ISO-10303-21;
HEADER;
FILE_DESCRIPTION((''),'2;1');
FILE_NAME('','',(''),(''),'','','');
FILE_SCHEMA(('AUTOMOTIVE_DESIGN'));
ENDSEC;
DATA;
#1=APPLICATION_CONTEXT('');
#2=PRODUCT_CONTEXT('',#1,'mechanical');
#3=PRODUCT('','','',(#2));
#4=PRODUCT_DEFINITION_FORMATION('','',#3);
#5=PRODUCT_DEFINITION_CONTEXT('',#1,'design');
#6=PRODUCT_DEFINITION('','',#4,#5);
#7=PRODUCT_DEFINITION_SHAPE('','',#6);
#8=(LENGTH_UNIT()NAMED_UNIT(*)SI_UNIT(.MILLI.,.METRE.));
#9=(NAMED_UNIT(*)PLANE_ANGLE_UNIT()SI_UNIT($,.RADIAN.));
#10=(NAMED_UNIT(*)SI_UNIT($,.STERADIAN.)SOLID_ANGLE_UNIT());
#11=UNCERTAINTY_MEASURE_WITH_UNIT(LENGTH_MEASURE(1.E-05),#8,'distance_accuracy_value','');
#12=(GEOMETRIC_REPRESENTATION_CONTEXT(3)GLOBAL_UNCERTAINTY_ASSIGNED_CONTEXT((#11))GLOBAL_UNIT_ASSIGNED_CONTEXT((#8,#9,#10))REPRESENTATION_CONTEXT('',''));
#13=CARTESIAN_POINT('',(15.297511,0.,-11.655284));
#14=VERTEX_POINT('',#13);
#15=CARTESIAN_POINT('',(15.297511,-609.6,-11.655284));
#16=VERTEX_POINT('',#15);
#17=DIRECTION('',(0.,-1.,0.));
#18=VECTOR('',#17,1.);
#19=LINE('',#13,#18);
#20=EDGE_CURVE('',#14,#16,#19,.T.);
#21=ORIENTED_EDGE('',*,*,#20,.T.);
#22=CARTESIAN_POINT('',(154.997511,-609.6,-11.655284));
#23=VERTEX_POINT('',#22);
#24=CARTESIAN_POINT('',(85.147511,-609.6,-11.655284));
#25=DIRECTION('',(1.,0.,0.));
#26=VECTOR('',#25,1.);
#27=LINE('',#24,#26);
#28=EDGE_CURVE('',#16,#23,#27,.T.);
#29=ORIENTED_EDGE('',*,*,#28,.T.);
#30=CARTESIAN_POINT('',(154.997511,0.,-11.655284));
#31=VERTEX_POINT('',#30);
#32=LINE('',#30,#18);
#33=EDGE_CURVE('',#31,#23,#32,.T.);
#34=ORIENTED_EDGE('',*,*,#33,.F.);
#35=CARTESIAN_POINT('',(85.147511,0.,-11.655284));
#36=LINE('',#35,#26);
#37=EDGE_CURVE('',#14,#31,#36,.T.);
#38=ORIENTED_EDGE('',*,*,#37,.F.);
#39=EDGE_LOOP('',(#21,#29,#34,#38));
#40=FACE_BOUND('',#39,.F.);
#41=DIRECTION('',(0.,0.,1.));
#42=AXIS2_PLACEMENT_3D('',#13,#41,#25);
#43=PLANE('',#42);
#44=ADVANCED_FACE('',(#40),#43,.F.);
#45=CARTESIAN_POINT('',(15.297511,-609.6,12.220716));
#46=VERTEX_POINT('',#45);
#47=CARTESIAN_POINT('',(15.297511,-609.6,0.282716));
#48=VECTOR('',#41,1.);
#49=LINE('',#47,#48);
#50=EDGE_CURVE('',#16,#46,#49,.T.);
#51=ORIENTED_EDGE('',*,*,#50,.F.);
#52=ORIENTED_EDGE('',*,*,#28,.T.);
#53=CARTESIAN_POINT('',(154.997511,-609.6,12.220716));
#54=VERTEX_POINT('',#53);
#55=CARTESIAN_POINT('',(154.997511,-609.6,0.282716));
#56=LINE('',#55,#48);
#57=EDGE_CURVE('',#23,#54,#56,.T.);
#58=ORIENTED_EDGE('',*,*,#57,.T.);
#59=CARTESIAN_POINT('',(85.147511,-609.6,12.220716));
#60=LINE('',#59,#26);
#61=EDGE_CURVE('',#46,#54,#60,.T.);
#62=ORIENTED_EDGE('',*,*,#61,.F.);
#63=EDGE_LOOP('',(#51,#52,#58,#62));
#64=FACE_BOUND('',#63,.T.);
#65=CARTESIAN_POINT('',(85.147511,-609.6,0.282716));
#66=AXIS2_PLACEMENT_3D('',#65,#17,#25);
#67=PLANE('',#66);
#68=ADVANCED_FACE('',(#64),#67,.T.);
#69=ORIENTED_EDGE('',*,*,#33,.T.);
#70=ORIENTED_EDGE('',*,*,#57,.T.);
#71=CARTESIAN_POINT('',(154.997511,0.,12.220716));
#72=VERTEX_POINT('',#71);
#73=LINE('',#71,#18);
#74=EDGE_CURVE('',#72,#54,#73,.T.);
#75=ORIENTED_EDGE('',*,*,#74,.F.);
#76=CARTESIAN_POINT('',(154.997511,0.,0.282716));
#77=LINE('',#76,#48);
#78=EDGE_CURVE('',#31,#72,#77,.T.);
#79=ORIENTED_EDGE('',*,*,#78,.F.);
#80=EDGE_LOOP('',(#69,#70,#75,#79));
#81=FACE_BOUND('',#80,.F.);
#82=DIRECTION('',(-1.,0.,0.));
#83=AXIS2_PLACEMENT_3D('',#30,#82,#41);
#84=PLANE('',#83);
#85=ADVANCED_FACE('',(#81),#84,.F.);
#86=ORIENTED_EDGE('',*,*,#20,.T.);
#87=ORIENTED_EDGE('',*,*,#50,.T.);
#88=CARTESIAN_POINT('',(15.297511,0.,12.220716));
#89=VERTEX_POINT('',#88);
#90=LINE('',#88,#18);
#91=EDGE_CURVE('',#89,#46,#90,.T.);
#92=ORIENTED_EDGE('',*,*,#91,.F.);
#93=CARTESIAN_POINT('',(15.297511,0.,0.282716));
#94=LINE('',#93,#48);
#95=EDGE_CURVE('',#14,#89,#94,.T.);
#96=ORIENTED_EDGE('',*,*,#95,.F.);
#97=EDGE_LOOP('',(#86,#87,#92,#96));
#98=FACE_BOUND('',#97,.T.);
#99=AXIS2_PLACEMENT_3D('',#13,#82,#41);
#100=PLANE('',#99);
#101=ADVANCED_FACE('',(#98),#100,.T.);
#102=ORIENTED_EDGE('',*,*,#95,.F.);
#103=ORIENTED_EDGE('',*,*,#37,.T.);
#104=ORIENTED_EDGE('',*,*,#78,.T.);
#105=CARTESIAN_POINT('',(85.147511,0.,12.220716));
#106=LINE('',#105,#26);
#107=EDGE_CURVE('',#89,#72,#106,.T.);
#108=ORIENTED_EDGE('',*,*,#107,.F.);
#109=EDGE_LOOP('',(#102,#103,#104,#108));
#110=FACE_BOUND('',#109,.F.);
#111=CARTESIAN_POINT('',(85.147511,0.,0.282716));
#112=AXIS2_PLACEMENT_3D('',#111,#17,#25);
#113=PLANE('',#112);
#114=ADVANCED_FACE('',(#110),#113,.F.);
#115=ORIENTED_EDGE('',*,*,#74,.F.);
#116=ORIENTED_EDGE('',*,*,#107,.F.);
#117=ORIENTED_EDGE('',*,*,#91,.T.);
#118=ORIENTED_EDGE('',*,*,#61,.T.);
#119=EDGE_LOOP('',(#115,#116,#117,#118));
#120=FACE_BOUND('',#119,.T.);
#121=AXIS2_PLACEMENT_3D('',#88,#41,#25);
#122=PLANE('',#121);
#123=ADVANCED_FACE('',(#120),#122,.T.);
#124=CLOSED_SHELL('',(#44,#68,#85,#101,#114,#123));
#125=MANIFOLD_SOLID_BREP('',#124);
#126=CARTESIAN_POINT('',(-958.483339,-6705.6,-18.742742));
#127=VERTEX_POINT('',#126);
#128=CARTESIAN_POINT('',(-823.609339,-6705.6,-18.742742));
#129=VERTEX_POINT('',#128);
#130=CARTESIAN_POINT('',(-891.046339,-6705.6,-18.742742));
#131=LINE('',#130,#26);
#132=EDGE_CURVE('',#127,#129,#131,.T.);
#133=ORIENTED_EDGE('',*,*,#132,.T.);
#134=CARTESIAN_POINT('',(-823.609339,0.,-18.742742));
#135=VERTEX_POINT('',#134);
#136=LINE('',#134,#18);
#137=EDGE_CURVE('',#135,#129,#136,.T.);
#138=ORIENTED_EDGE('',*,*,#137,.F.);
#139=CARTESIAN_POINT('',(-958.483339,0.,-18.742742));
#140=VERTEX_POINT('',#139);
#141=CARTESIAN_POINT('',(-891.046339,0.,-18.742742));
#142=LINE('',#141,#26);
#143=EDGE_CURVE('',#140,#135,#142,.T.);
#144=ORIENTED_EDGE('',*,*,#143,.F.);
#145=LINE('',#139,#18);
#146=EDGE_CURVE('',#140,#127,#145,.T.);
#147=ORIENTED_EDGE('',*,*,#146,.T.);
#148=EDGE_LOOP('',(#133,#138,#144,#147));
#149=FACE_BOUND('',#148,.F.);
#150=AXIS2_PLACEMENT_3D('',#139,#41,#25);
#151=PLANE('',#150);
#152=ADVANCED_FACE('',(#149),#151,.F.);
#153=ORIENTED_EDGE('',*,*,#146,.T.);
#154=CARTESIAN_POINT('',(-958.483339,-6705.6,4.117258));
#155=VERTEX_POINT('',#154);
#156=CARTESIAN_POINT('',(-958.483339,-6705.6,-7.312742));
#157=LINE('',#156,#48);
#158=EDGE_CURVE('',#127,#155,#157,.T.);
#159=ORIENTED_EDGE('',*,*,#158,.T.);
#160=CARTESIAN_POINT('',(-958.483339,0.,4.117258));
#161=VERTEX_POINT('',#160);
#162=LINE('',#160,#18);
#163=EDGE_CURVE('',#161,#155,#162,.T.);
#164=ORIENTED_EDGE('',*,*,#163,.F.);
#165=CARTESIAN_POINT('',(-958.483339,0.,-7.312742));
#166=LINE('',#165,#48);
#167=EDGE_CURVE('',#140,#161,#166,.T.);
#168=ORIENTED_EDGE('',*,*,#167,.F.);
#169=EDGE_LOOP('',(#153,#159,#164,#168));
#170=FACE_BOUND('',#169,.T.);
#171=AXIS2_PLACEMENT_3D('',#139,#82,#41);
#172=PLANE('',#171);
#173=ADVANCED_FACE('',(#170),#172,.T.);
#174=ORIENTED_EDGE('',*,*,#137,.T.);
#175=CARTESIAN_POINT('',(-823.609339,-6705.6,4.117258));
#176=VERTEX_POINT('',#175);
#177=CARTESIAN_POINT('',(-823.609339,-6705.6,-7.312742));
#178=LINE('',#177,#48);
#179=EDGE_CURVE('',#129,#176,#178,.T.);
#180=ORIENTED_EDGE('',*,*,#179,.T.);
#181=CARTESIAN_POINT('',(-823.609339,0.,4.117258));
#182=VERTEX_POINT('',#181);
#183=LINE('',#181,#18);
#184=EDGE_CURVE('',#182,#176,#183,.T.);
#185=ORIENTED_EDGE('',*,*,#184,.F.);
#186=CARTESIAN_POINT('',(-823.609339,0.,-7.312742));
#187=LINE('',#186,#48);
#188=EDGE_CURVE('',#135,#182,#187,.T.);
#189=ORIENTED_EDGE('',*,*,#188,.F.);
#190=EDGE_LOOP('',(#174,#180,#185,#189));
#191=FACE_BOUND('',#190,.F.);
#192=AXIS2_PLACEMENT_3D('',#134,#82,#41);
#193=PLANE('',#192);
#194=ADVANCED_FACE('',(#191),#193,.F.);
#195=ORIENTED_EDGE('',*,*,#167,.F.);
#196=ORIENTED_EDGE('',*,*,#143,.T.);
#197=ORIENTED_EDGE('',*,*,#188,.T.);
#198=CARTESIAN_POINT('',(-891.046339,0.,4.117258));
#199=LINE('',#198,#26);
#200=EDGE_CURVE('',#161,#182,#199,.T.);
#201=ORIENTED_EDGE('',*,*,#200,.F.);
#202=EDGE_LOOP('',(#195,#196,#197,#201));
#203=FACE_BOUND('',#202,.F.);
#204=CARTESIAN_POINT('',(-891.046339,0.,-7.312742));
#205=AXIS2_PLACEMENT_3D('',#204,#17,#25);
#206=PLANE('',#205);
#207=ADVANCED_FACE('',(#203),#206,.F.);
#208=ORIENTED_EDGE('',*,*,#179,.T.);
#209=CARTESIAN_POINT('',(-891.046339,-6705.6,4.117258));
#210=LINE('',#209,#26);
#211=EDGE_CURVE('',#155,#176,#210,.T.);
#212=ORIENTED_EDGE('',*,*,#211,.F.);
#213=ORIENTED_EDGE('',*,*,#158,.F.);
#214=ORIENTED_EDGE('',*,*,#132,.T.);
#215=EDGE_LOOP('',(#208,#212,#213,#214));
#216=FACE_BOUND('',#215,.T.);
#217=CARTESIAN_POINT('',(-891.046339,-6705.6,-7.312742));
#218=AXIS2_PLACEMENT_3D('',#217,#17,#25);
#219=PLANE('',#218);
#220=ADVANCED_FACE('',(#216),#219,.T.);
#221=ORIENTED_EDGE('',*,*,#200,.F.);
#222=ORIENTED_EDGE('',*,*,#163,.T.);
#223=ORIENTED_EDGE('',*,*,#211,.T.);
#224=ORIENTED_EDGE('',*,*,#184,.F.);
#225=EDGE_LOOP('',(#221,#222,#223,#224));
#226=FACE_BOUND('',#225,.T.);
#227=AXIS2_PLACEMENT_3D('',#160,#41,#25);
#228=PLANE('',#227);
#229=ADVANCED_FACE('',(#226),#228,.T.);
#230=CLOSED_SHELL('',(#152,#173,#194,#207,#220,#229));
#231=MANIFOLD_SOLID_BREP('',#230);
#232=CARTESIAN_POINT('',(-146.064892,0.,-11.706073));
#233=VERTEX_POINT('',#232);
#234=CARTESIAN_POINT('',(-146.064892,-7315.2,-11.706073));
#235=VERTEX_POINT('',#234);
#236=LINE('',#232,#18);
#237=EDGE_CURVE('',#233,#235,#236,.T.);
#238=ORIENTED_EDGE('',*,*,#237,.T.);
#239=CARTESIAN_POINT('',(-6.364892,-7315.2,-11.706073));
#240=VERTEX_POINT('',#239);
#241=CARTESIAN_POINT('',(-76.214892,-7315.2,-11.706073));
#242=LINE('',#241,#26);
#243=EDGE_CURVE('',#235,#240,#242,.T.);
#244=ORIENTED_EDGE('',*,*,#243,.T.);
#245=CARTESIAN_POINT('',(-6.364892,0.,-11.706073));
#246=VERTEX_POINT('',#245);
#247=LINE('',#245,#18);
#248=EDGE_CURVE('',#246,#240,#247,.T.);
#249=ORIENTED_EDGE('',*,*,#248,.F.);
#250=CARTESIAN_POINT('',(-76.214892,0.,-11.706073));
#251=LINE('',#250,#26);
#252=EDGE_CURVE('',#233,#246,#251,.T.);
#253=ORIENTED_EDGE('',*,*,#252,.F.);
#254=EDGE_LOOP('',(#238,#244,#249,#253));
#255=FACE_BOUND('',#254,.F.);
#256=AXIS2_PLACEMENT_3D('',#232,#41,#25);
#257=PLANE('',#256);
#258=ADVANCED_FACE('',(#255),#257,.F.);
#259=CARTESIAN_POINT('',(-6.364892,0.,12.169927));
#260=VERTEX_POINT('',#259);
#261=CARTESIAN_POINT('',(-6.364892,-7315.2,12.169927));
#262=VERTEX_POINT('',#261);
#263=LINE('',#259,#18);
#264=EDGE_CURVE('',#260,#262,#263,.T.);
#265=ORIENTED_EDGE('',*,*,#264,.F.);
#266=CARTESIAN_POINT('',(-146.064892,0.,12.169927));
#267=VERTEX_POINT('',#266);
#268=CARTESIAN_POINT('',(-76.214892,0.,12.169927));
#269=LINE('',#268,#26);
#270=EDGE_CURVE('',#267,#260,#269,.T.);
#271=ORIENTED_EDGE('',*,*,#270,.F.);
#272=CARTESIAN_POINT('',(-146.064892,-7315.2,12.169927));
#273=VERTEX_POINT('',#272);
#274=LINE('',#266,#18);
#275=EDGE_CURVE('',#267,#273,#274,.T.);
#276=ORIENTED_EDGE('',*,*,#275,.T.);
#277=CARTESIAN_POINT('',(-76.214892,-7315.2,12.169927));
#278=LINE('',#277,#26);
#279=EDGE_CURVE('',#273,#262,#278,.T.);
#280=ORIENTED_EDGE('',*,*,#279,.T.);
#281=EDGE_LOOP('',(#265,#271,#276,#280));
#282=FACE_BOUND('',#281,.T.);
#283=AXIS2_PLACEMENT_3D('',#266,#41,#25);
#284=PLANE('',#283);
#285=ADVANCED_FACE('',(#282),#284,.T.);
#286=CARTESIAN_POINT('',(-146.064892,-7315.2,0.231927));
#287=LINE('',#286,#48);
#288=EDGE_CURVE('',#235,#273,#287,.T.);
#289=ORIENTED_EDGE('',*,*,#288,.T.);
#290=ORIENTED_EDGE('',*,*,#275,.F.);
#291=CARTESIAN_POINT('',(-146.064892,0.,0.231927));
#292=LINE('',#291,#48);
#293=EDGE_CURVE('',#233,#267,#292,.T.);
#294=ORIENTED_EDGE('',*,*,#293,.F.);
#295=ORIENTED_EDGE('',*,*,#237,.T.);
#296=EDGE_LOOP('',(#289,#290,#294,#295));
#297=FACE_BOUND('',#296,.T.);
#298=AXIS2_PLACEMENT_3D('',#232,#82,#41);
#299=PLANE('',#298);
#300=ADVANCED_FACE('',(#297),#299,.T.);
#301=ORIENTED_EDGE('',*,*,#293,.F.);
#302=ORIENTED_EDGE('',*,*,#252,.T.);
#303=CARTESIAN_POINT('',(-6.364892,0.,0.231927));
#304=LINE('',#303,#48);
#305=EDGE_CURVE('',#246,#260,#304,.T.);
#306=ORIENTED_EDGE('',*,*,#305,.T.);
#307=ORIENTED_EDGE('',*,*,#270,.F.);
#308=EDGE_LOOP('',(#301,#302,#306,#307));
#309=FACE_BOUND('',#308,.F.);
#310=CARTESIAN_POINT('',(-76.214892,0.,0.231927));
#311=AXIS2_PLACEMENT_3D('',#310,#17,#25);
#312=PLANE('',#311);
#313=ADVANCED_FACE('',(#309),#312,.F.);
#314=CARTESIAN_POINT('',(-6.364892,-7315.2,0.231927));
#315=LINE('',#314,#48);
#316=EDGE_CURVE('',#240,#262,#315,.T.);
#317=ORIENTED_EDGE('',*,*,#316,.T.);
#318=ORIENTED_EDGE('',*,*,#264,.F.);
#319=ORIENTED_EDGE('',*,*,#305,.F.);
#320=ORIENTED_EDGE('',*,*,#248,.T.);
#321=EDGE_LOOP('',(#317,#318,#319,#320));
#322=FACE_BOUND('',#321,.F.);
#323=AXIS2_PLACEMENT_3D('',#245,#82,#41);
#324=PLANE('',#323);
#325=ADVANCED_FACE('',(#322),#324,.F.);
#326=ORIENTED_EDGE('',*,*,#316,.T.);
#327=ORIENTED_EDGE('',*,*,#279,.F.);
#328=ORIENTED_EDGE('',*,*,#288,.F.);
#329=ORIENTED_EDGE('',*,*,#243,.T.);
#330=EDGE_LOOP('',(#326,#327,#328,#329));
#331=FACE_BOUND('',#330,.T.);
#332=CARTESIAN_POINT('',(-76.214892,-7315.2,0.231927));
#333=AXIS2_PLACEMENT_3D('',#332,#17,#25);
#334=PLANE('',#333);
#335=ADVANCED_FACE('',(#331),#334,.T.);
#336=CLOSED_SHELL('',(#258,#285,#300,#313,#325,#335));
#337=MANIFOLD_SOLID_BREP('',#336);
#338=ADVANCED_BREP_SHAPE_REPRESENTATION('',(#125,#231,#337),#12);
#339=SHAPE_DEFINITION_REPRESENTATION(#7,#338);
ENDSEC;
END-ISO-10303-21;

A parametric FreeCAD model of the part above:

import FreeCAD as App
import Part
import Sketcher
from FreeCAD import Vector
Q = App.Units.Quantity

doc = App.newDocument("Part")
body = doc.addObject("PartDesign::Body", "Body")

sketch1 = doc.addObject("Sketcher::SketchObject", "Sketch")
body.addObject(sketch1)
sketch1.AttachmentSupport = (doc.XZ_Plane, [""])
sketch1.MapMode = "FlatFace"
sketch1.addGeometry([
    Part.LineSegment(Vector(-958, 4, 0), Vector(-958, -19, 0)),
    Part.LineSegment(Vector(-958, -19, 0), Vector(-824, -19, 0)),
    Part.LineSegment(Vector(-824, -19, 0), Vector(-824, 4, 0)),
    Part.LineSegment(Vector(-824, 4, 0), Vector(-958, 4, 0)),
], False)
sketch1.addConstraint([
    Sketcher.Constraint("Coincident", 0, 2, 1, 1),
    Sketcher.Constraint("Coincident", 1, 2, 2, 1),
    Sketcher.Constraint("Coincident", 2, 2, 3, 1),
    Sketcher.Constraint("Coincident", 3, 2, 0, 1),
    Sketcher.Constraint("Vertical", 0),
    Sketcher.Constraint("Horizontal", 1),
    Sketcher.Constraint("Vertical", 2),
    Sketcher.Constraint("Horizontal", 3),
    Sketcher.Constraint("DistanceY", 0, 2, 0, 1, Q("0.9 in")),
    Sketcher.Constraint("DistanceX", 1, 1, 1, 2, Q("5.31 in")),
    Sketcher.Constraint("DistanceX", 0, 2, -1, 1, Q("958.483339 mm")),
    Sketcher.Constraint("DistanceY", 0, 2, -1, 1, Q("18.742742 mm")),
])
pad1 = doc.addObject("PartDesign::Pad", "Pad")
body.addObject(pad1)
pad1.Profile = sketch1
pad1.Length = Q("264 in")
body2 = doc.addObject("PartDesign::Body", "Body001")

sketch2 = doc.addObject("Sketcher::SketchObject", "Sketch001")
body2.addObject(sketch2)
sketch2.AttachmentSupport = (doc.getObject("XZ_Plane001"), [""])
sketch2.MapMode = "FlatFace"
sketch2.addGeometry([
    Part.LineSegment(Vector(-146, 12, 0), Vector(-146, -12, 0)),
    Part.LineSegment(Vector(-146, -12, 0), Vector(-6, -12, 0)),
    Part.LineSegment(Vector(-6, -12, 0), Vector(-6, 12, 0)),
    Part.LineSegment(Vector(-6, 12, 0), Vector(-146, 12, 0)),
], False)
sketch2.addConstraint([
    Sketcher.Constraint("Coincident", 0, 2, 1, 1),
    Sketcher.Constraint("Coincident", 1, 2, 2, 1),
    Sketcher.Constraint("Coincident", 2, 2, 3, 1),
    Sketcher.Constraint("Coincident", 3, 2, 0, 1),
    Sketcher.Constraint("Vertical", 0),
    Sketcher.Constraint("Horizontal", 1),
    Sketcher.Constraint("Vertical", 2),
    Sketcher.Constraint("Horizontal", 3),
    Sketcher.Constraint("DistanceX", 1, 1, 1, 2, Q("5.5 in")),
    Sketcher.Constraint("DistanceY", 0, 2, 0, 1, Q("0.94 in")),
    Sketcher.Constraint("DistanceX", 0, 2, -1, 1, Q("146.064892 mm")),
    Sketcher.Constraint("DistanceY", 0, 2, -1, 1, Q("11.706073 mm")),
])
pad2 = doc.addObject("PartDesign::Pad", "Pad001")
body2.addObject(pad2)
pad2.Profile = sketch2
pad2.Length = Q("288 in")
body3 = doc.addObject("PartDesign::Body", "Body002")

sketch3 = doc.addObject("Sketcher::SketchObject", "Sketch002")
body3.addObject(sketch3)
sketch3.AttachmentSupport = (doc.getObject("XZ_Plane002"), [""])
sketch3.MapMode = "FlatFace"
sketch3.addGeometry([
    Part.LineSegment(Vector(15, 12, 0), Vector(15, -12, 0)),
    Part.LineSegment(Vector(15, -12, 0), Vector(155, -12, 0)),
    Part.LineSegment(Vector(155, -12, 0), Vector(155, 12, 0)),
    Part.LineSegment(Vector(155, 12, 0), Vector(15, 12, 0)),
], False)
sketch3.addConstraint([
    Sketcher.Constraint("Coincident", 0, 2, 1, 1),
    Sketcher.Constraint("Coincident", 1, 2, 2, 1),
    Sketcher.Constraint("Coincident", 2, 2, 3, 1),
    Sketcher.Constraint("Coincident", 3, 2, 0, 1),
    Sketcher.Constraint("Vertical", 0),
    Sketcher.Constraint("Horizontal", 1),
    Sketcher.Constraint("Vertical", 2),
    Sketcher.Constraint("Horizontal", 3),
    Sketcher.Constraint("DistanceX", 1, 1, 1, 2, Q("5.5 in")),
    Sketcher.Constraint("DistanceY", 0, 2, 0, 1, Q("0.94 in")),
    Sketcher.Constraint("DistanceX", -1, 1, 0, 2, Q("15.297511 mm")),
    Sketcher.Constraint("DistanceY", 0, 2, -1, 1, Q("11.655284 mm")),
])
pad3 = doc.addObject("PartDesign::Pad", "Pad002")
body3.addObject(pad3)
pad3.Profile = sketch3
pad3.Length = Q("24 in")

doc.recompute()
